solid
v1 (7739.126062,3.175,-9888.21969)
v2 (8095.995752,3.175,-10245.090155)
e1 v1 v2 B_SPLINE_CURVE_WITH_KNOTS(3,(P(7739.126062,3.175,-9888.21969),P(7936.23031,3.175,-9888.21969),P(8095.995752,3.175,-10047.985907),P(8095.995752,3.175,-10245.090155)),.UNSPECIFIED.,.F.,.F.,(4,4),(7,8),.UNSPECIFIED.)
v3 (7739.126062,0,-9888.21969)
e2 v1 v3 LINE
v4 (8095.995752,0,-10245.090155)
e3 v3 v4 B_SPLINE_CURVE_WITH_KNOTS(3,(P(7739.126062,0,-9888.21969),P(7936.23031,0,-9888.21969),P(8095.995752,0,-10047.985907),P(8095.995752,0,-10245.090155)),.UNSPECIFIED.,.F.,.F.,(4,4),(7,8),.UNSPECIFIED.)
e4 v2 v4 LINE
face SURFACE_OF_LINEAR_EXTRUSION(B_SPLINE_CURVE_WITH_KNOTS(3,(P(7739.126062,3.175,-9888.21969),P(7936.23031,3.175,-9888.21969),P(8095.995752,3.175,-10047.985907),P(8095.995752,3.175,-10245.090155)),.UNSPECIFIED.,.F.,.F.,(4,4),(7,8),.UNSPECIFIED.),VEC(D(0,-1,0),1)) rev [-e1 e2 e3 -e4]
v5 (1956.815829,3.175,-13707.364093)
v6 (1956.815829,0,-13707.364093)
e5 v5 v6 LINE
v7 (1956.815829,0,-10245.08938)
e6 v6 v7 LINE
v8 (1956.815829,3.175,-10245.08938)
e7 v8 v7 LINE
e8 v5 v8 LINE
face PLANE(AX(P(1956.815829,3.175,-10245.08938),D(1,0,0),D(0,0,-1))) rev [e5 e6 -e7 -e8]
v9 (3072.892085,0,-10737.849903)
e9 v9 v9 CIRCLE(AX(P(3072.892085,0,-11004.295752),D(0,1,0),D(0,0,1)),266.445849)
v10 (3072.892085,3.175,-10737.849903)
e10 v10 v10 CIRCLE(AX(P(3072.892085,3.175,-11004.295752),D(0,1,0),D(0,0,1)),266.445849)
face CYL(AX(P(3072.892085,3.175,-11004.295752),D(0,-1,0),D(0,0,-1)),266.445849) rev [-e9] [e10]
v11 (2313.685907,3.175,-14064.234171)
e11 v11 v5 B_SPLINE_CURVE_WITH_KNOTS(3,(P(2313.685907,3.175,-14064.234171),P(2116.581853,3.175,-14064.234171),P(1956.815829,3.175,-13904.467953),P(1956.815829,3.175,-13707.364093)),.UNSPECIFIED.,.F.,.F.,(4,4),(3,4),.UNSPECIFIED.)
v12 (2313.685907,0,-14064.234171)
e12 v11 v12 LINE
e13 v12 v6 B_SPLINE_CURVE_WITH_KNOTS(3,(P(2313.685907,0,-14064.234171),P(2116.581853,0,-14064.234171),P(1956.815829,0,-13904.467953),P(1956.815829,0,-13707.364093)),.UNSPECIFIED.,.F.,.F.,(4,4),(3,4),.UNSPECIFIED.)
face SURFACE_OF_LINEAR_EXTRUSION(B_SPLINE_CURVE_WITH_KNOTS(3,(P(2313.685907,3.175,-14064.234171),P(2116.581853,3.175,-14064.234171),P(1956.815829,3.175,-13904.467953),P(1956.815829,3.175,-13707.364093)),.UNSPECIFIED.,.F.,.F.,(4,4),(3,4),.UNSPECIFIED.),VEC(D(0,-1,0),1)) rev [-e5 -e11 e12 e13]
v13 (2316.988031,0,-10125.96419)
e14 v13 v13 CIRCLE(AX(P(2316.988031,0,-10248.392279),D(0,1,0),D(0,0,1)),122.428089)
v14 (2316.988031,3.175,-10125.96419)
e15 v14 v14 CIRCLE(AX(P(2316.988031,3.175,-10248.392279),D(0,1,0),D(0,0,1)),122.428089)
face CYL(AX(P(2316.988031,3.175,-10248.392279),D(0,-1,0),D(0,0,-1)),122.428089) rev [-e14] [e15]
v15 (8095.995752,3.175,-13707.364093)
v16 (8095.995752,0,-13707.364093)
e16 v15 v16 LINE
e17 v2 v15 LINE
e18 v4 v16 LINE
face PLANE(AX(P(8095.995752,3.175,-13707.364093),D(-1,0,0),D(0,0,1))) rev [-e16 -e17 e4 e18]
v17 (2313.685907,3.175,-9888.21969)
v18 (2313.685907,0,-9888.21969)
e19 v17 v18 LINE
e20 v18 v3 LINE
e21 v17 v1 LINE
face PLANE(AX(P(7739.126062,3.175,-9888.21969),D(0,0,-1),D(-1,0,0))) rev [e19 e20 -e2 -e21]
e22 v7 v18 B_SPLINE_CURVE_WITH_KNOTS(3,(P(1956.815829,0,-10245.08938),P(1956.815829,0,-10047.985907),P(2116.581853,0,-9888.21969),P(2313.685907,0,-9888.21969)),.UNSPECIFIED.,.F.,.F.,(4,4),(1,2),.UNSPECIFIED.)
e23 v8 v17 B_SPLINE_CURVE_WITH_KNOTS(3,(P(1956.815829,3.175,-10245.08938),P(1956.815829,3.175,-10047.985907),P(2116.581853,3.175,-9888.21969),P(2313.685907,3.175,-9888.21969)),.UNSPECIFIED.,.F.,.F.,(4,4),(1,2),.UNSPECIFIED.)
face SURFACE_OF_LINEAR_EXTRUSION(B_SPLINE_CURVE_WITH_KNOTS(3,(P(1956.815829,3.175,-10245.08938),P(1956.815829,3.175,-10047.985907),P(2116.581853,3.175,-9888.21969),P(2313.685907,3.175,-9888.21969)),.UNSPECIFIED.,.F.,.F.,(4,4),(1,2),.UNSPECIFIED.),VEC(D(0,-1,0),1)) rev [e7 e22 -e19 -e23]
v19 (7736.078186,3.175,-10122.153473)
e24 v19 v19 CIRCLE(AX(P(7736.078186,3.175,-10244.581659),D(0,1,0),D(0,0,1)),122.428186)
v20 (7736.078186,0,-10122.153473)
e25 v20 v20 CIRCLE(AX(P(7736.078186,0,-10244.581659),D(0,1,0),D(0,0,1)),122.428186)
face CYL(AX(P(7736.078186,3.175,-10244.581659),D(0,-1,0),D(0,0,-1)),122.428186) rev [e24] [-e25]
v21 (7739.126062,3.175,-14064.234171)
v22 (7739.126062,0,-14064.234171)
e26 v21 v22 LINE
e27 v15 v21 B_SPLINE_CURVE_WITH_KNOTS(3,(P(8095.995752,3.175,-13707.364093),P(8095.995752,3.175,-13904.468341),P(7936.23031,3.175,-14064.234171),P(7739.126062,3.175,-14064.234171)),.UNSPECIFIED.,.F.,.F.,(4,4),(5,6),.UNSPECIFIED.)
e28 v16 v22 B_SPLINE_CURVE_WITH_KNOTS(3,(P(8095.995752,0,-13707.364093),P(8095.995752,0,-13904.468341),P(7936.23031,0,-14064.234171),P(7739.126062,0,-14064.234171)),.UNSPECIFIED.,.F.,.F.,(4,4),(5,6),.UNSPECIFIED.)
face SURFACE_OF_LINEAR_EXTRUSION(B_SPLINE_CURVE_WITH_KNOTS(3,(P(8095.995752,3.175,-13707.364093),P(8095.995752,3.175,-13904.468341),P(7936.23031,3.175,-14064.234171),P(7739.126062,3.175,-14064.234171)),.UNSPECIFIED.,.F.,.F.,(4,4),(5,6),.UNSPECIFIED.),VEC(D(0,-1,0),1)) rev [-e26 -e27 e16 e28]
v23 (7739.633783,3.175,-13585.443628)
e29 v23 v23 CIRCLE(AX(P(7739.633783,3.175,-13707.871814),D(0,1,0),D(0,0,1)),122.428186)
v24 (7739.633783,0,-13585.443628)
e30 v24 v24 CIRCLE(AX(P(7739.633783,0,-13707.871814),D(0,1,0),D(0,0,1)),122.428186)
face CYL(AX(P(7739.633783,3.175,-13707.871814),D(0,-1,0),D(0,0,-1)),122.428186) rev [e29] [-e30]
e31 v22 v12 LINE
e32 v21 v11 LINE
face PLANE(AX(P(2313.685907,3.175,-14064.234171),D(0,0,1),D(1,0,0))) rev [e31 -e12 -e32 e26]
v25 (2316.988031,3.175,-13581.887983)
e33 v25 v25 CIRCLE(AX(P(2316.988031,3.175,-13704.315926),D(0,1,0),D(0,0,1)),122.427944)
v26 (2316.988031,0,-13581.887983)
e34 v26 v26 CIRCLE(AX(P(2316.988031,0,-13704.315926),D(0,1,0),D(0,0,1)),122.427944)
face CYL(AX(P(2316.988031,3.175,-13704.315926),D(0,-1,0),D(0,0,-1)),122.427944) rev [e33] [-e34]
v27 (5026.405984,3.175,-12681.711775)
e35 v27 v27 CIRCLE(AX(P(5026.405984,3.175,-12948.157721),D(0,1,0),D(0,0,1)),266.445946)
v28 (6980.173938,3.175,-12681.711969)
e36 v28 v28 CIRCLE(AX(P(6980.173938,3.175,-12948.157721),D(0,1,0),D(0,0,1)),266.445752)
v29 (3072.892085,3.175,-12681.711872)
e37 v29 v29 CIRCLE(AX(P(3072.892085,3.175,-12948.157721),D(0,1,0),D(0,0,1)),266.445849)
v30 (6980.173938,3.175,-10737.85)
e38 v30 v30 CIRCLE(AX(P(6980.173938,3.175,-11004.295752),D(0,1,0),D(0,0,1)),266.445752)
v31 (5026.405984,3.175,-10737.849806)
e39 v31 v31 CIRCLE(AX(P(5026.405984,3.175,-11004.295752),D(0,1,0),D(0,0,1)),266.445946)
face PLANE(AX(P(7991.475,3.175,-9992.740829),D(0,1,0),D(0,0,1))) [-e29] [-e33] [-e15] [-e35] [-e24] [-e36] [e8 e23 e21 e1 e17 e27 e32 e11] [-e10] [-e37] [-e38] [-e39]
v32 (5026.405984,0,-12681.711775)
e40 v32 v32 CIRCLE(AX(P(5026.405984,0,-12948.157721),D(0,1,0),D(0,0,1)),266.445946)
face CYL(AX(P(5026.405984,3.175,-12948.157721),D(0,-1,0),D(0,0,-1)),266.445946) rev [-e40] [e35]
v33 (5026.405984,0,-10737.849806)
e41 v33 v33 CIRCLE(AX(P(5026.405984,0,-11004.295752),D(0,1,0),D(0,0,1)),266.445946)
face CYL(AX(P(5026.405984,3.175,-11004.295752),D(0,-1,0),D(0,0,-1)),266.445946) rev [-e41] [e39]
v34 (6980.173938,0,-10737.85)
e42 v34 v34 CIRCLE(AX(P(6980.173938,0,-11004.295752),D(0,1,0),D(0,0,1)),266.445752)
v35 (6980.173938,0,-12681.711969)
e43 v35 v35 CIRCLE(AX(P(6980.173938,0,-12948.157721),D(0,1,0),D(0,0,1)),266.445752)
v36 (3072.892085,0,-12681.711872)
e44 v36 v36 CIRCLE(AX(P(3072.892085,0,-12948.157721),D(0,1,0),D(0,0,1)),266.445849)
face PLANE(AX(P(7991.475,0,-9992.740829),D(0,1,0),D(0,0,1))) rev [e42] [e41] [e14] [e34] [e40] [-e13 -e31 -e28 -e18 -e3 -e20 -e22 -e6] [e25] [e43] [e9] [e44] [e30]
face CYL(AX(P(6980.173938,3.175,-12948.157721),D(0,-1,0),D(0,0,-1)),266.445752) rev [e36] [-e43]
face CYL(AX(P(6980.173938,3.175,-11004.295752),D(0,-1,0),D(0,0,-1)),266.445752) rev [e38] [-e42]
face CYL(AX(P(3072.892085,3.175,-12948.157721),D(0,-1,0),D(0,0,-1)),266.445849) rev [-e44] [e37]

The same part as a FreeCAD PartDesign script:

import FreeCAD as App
import Part
import Sketcher
Q = App.Units.Quantity

doc = App.newDocument("Part")
params = doc.addObject("Spreadsheet::Sheet", "Params")
for row, (alias, value) in enumerate([
    ("pad1_length", "0.125 in"),
], start=1):
    params.set(f"A{row}", alias)
    params.set(f"B{row}", "=" + value)
    params.setAlias(f"B{row}", alias)

body = doc.addObject("PartDesign::Body", "Body")

sketch1 = body.newObject("Sketcher::SketchObject", "Sketch")
sketch1.AttachmentSupport = (doc.getObject("XZ_Plane"), [""])
sketch1.MapMode = "FlatFace"
sketch1.addGeometry([
    Part.LineSegment(App.Vector(2313.685907, -9888.21969, 0), App.Vector(7739.126062, -9888.21969, 0)),
    Part.BSplineCurve([App.Vector(8095.995752, -10245.090155, 0), App.Vector(8095.995752, -10047.985907, 0), App.Vector(7936.23031, -9888.21969, 0), App.Vector(7739.126062, -9888.21969, 0)], [4, 4], [7, 8], False, 3, [1, 1, 1, 1], False),
    Part.LineSegment(App.Vector(8095.995752, -10245.090155, 0), App.Vector(8095.995752, -13707.364093, 0)),
    Part.BSplineCurve([App.Vector(7739.126062, -14064.234171, 0), App.Vector(7936.23031, -14064.234171, 0), App.Vector(8095.995752, -13904.468341, 0), App.Vector(8095.995752, -13707.364093, 0)], [4, 4], [5, 6], False, 3, [1, 1, 1, 1], False),
    Part.LineSegment(App.Vector(7739.126062, -14064.234171, 0), App.Vector(2313.685907, -14064.234171, 0)),
    Part.BSplineCurve([App.Vector(1956.815829, -13707.364093, 0), App.Vector(1956.815829, -13904.467953, 0), App.Vector(2116.581853, -14064.234171, 0), App.Vector(2313.685907, -14064.234171, 0)], [4, 4], [3, 4], False, 3, [1, 1, 1, 1], False),
    Part.LineSegment(App.Vector(1956.815829, -13707.364093, 0), App.Vector(1956.815829, -10245.08938, 0)),
    Part.BSplineCurve([App.Vector(2313.685907, -9888.21969, 0), App.Vector(2116.581853, -9888.21969, 0), App.Vector(1956.815829, -10047.985907, 0), App.Vector(1956.815829, -10245.08938, 0)], [4, 4], [1, 2], False, 3, [1, 1, 1, 1], False),
    Part.Circle(App.Vector(7736.078186, -10244.581659, 0), App.Vector(0, 0, 1), 122.428186),
    Part.Circle(App.Vector(6980.173938, -11004.295752, 0), App.Vector(0, 0, 1), 266.445752),
    Part.Circle(App.Vector(5026.405984, -11004.295752, 0), App.Vector(0, 0, 1), 266.445946),
    Part.Circle(App.Vector(2316.988031, -10248.392279, 0), App.Vector(0, 0, 1), 122.428089),
    Part.Circle(App.Vector(3072.892085, -11004.295752, 0), App.Vector(0, 0, 1), 266.445849),
    Part.Circle(App.Vector(6980.173938, -12948.157721, 0), App.Vector(0, 0, 1), 266.445752),
    Part.Circle(App.Vector(7739.633783, -13707.871814, 0), App.Vector(0, 0, 1), 122.428186),
    Part.Circle(App.Vector(5026.405984, -12948.157721, 0), App.Vector(0, 0, 1), 266.445946),
    Part.Circle(App.Vector(3072.892085, -12948.157721, 0), App.Vector(0, 0, 1), 266.445849),
    Part.Circle(App.Vector(2316.988031, -13704.315926, 0), App.Vector(0, 0, 1), 122.427944),
], False)
sketch1.addConstraint([
    Sketcher.Constraint("Block", 1),
    Sketcher.Constraint("Block", 3),
    Sketcher.Constraint("Block", 5),
    Sketcher.Constraint("Block", 7),
    Sketcher.Constraint("Coincident", 0, 2, 1, 2),
    Sketcher.Constraint("Coincident", 1, 1, 2, 1),
    Sketcher.Constraint("Coincident", 2, 2, 3, 2),
    Sketcher.Constraint("Coincident", 3, 1, 4, 1),
    Sketcher.Constraint("Coincident", 4, 2, 5, 2),
    Sketcher.Constraint("Coincident", 5, 1, 6, 1),
    Sketcher.Constraint("Coincident", 6, 2, 7, 2),
    Sketcher.Constraint("Coincident", 7, 1, 0, 1),
    Sketcher.Constraint("Equal", 9, 13),
    Sketcher.Constraint("Equal", 8, 14),
    Sketcher.Constraint("Equal", 10, 15),
    Sketcher.Constraint("Equal", 12, 16),
    Sketcher.Constraint("Horizontal", 9, 3, 10, 3),
    Sketcher.Constraint("Horizontal", 10, 3, 12, 3),
    Sketcher.Constraint("Horizontal", 13, 3, 15, 3),
    Sketcher.Constraint("Horizontal", 15, 3, 16, 3),
    Sketcher.Constraint("Vertical", 9, 3, 13, 3),
    Sketcher.Constraint("Vertical", 10, 3, 15, 3),
    Sketcher.Constraint("Vertical", 12, 3, 16, 3),
    Sketcher.Constraint("Vertical", 11, 3, 17, 3),
    Sketcher.Constraint("Diameter", 10, Q("532.891891 mm")),
    Sketcher.Constraint("Diameter", 11, Q("244.856178 mm")),
    Sketcher.Constraint("Diameter", 8, Q("244.856372 mm")),
    Sketcher.Constraint("Diameter", 9, Q("532.891504 mm")),
    Sketcher.Constraint("Diameter", 12, Q("532.891698 mm")),
    Sketcher.Constraint("Diameter", 17, Q("244.855888 mm")),
    Sketcher.Constraint("DistanceX", 10, 3, 8, 3, Q("2709.672202 mm")),
    Sketcher.Constraint("DistanceX", 12, 3, 10, 3, Q("1953.513899 mm")),
    Sketcher.Constraint("DistanceX", 10, 3, 14, 3, Q("2713.227798 mm")),
    Sketcher.Constraint("DistanceX", 6, 2, 11, 3, Q("360.172202 mm")),
    Sketcher.Constraint("DistanceY", 11, 3, 6, 2, Q("3.302899 mm")),
    Sketcher.Constraint("DistanceY", 8, 3, -1, 1, Q("10244.581659 mm")),
    Sketcher.Constraint("DistanceY", 9, 3, -1, 1, Q("11004.295752 mm")),
    Sketcher.Constraint("DistanceY", 13, 3, -1, 1, Q("12948.157721 mm")),
    Sketcher.Constraint("DistanceX", 9, 3, 8, 3, Q("755.904248 mm")),
    Sketcher.Constraint("DistanceX", 0, 2, 14, 3, Q("0.507721 mm")),
    Sketcher.Constraint("DistanceY", 14, 3, 2, 2, Q("0.507721 mm")),
    Sketcher.Constraint("DistanceY", 17, 3, -1, 1, Q("13704.315926 mm")),
])
pad1 = body.newObject("PartDesign::Pad", "Pad")
pad1.Profile = sketch1
pad1.setExpression("Length", "Params.pad1_length")
pad1.Reversed = True

doc.recompute()
